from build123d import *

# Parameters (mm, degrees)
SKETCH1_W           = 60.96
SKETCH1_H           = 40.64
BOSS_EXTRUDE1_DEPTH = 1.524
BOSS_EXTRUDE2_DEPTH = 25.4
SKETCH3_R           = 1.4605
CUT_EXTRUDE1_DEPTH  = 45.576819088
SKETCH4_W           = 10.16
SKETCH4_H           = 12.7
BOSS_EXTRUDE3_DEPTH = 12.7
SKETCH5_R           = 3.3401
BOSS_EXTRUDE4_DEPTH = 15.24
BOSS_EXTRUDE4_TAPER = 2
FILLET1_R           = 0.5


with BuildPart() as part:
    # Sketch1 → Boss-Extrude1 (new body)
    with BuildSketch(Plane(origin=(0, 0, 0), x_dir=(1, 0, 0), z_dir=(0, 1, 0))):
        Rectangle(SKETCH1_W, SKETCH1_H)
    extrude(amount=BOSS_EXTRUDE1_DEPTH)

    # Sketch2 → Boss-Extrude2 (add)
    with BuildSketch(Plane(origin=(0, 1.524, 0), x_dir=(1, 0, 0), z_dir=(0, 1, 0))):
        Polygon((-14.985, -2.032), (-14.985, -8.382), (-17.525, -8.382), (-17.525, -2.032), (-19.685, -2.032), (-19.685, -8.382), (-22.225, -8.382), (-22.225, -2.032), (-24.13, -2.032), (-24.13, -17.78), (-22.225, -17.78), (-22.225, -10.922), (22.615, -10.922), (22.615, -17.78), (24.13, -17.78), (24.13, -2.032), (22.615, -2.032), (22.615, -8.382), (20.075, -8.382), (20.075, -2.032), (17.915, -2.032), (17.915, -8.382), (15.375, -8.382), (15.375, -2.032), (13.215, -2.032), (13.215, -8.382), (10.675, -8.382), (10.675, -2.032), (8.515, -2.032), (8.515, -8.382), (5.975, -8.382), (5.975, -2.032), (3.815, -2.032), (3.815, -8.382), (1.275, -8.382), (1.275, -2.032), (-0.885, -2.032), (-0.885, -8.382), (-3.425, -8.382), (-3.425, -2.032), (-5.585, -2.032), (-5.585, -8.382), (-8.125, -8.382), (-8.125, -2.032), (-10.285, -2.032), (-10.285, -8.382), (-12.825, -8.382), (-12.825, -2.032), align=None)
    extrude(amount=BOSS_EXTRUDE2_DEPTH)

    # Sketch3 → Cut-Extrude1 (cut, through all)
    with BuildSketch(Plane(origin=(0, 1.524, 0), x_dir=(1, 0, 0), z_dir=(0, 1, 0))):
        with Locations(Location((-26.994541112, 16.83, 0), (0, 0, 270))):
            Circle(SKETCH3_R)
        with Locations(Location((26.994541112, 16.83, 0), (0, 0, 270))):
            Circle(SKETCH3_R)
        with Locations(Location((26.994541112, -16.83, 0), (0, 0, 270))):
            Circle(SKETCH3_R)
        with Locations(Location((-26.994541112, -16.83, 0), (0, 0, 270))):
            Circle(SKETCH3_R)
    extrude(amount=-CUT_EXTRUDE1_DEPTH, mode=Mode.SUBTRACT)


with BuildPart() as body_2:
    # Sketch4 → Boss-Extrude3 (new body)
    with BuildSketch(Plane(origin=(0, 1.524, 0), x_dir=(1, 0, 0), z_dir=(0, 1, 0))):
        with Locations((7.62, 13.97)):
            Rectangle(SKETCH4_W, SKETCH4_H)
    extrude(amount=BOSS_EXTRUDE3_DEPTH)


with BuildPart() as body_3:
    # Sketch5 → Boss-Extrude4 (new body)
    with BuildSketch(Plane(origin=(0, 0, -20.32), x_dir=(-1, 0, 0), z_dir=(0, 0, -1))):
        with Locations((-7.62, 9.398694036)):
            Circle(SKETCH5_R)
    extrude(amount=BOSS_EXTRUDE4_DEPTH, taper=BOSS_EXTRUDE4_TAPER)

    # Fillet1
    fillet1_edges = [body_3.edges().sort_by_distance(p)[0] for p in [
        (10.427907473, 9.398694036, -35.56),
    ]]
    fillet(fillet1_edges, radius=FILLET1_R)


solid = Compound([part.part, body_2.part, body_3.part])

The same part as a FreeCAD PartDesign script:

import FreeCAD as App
import Part
import Sketcher

V = App.Vector
Q = App.Units.Quantity


def edges_at(feature, points):
    """Names of the edges that pass closest to the given points."""
    edges = feature.Shape.Edges
    near = lambda p: min(range(len(edges)), key=lambda i: edges[i].distToShape(Part.Vertex(*p))[0])
    return sorted({f"Edge{near(p) + 1}" for p in points})

doc = App.newDocument("Part")
body = doc.addObject("PartDesign::Body", "Body")

# Sketch on XZ plane
sketch1 = doc.addObject("Sketcher::SketchObject", "Sketch")
body.addObject(sketch1)
sketch1.AttachmentSupport = (doc.XZ_Plane, [""])
sketch1.MapMode = "FlatFace"
sketch1.addGeometry([
    Part.LineSegment(V(-30.48, -20.32, 0), V(-30.48, 20.32, 0)),
    Part.LineSegment(V(-30.48, 20.32, 0), V(30.48, 20.32, 0)),
    Part.LineSegment(V(30.48, 20.32, 0), V(30.48, -20.32, 0)),
    Part.LineSegment(V(30.48, -20.32, 0), V(-30.48, -20.32, 0)),
], False)
sketch1.addConstraint([
    Sketcher.Constraint("Coincident", 0, 2, 1, 1),
    Sketcher.Constraint("Coincident", 1, 2, 2, 1),
    Sketcher.Constraint("Coincident", 2, 2, 3, 1),
    Sketcher.Constraint("Coincident", 3, 2, 0, 1),
    Sketcher.Constraint("Vertical", 0),
    Sketcher.Constraint("Horizontal", 1),
    Sketcher.Constraint("Vertical", 2),
    Sketcher.Constraint("Horizontal", 3),
    Sketcher.Constraint("Symmetric", 0, 2, 2, 2, -1, 1),
    Sketcher.Constraint("DistanceX", 1, 1, 1, 2, Q("2.4 in")),
    Sketcher.Constraint("DistanceY", 0, 1, 0, 2, Q("1.6 in")),
])
pad1 = doc.addObject("PartDesign::Pad", "Pad")
body.addObject(pad1)
pad1.Profile = sketch1
pad1.Length = Q("0.06 in")
pad1.Reversed = True

# Sketch on XZ plane
sketch2 = doc.addObject("Sketcher::SketchObject", "Sketch001")
body.addObject(sketch2)
sketch2.AttachmentSupport = (doc.XZ_Plane, [""])
sketch2.MapMode = "FlatFace"
sketch2.AttachmentOffset = App.Placement(V(0, 0, -0.06 * 25.4), App.Rotation())
sketch2.addGeometry([
    Part.LineSegment(V(-14.985, 2.032, 0), V(-14.985, 8.382, 0)),  # 0
    Part.LineSegment(V(-14.985, 8.382, 0), V(-17.525, 8.382, 0)),  # 1
    Part.LineSegment(V(-17.525, 8.382, 0), V(-17.525, 2.032, 0)),  # 2
    Part.LineSegment(V(-17.525, 2.032, 0), V(-19.685, 2.032, 0)),  # 3
    Part.LineSegment(V(-19.685, 2.032, 0), V(-19.685, 8.382, 0)),  # 4
    Part.LineSegment(V(-19.685, 8.382, 0), V(-22.225, 8.382, 0)),  # 5
    Part.LineSegment(V(-22.225, 8.382, 0), V(-22.225, 2.032, 0)),  # 6
    Part.LineSegment(V(-22.225, 2.032, 0), V(-24.13, 2.032, 0)),  # 7
    Part.LineSegment(V(-24.13, 2.032, 0), V(-24.13, 17.78, 0)),  # 8
    Part.LineSegment(V(-24.13, 17.78, 0), V(-22.225, 17.78, 0)),  # 9
    Part.LineSegment(V(-22.225, 17.78, 0), V(-22.225, 10.922, 0)),  # 10
    Part.LineSegment(V(-22.225, 10.922, 0), V(22.615, 10.922, 0)),  # 11
    Part.LineSegment(V(22.615, 10.922, 0), V(22.615, 17.78, 0)),  # 12
    Part.LineSegment(V(22.615, 17.78, 0), V(24.13, 17.78, 0)),  # 13
    Part.LineSegment(V(24.13, 17.78, 0), V(24.13, 2.032, 0)),  # 14
    Part.LineSegment(V(24.13, 2.032, 0), V(22.615, 2.032, 0)),  # 15
    Part.LineSegment(V(22.615, 2.032, 0), V(22.615, 8.382, 0)),  # 16
    Part.LineSegment(V(22.615, 8.382, 0), V(20.075, 8.382, 0)),  # 17
    Part.LineSegment(V(20.075, 8.382, 0), V(20.075, 2.032, 0)),  # 18
    Part.LineSegment(V(20.075, 2.032, 0), V(17.915, 2.032, 0)),  # 19
    Part.LineSegment(V(17.915, 2.032, 0), V(17.915, 8.382, 0)),  # 20
    Part.LineSegment(V(17.915, 8.382, 0), V(15.375, 8.382, 0)),  # 21
    Part.LineSegment(V(15.375, 8.382, 0), V(15.375, 2.032, 0)),  # 22
    Part.LineSegment(V(15.375, 2.032, 0), V(13.215, 2.032, 0)),  # 23
    Part.LineSegment(V(13.215, 2.032, 0), V(13.215, 8.382, 0)),  # 24
    Part.LineSegment(V(13.215, 8.382, 0), V(10.675, 8.382, 0)),  # 25
    Part.LineSegment(V(10.675, 8.382, 0), V(10.675, 2.032, 0)),  # 26
    Part.LineSegment(V(10.675, 2.032, 0), V(8.515, 2.032, 0)),  # 27
    Part.LineSegment(V(8.515, 2.032, 0), V(8.515, 8.382, 0)),  # 28
    Part.LineSegment(V(8.515, 8.382, 0), V(5.975, 8.382, 0)),  # 29
    Part.LineSegment(V(5.975, 8.382, 0), V(5.975, 2.032, 0)),  # 30
    Part.LineSegment(V(5.975, 2.032, 0), V(3.815, 2.032, 0)),  # 31
    Part.LineSegment(V(3.815, 2.032, 0), V(3.815, 8.382, 0)),  # 32
    Part.LineSegment(V(3.815, 8.382, 0), V(1.275, 8.382, 0)),  # 33
    Part.LineSegment(V(1.275, 8.382, 0), V(1.275, 2.032, 0)),  # 34
    Part.LineSegment(V(1.275, 2.032, 0), V(-0.885, 2.032, 0)),  # 35
    Part.LineSegment(V(-0.885, 2.032, 0), V(-0.885, 8.382, 0)),  # 36
    Part.LineSegment(V(-0.885, 8.382, 0), V(-3.425, 8.382, 0)),  # 37
    Part.LineSegment(V(-3.425, 8.382, 0), V(-3.425, 2.032, 0)),  # 38
    Part.LineSegment(V(-3.425, 2.032, 0), V(-5.585, 2.032, 0)),  # 39
    Part.LineSegment(V(-5.585, 2.032, 0), V(-5.585, 8.382, 0)),  # 40
    Part.LineSegment(V(-5.585, 8.382, 0), V(-8.125, 8.382, 0)),  # 41
    Part.LineSegment(V(-8.125, 8.382, 0), V(-8.125, 2.032, 0)),  # 42
    Part.LineSegment(V(-8.125, 2.032, 0), V(-10.285, 2.032, 0)),  # 43
    Part.LineSegment(V(-10.285, 2.032, 0), V(-10.285, 8.382, 0)),  # 44
    Part.LineSegment(V(-10.285, 8.382, 0), V(-12.825, 8.382, 0)),  # 45
    Part.LineSegment(V(-12.825, 8.382, 0), V(-12.825, 2.032, 0)),  # 46
    Part.LineSegment(V(-12.825, 2.032, 0), V(-14.985, 2.032, 0)),  # 47
], False)
sketch2.addConstraint([
    Sketcher.Constraint("Coincident", 0, 2, 1, 1),
    Sketcher.Constraint("Coincident", 1, 2, 2, 1),
    Sketcher.Constraint("Coincident", 2, 2, 3, 1),
    Sketcher.Constraint("Coincident", 3, 2, 4, 1),
    Sketcher.Constraint("Coincident", 4, 2, 5, 1),
    Sketcher.Constraint("Coincident", 5, 2, 6, 1),
    Sketcher.Constraint("Coincident", 6, 2, 7, 1),
    Sketcher.Constraint("Coincident", 7, 2, 8, 1),
    Sketcher.Constraint("Coincident", 8, 2, 9, 1),
    Sketcher.Constraint("Coincident", 9, 2, 10, 1),
    Sketcher.Constraint("Coincident", 10, 2, 11, 1),
    Sketcher.Constraint("Coincident", 11, 2, 12, 1),
    Sketcher.Constraint("Coincident", 12, 2, 13, 1),
    Sketcher.Constraint("Coincident", 13, 2, 14, 1),
    Sketcher.Constraint("Coincident", 14, 2, 15, 1),
    Sketcher.Constraint("Coincident", 15, 2, 16, 1),
    Sketcher.Constraint("Coincident", 16, 2, 17, 1),
    Sketcher.Constraint("Coincident", 17, 2, 18, 1),
    Sketcher.Constraint("Coincident", 18, 2, 19, 1),
    Sketcher.Constraint("Coincident", 19, 2, 20, 1),
    Sketcher.Constraint("Coincident", 20, 2, 21, 1),
    Sketcher.Constraint("Coincident", 21, 2, 22, 1),
    Sketcher.Constraint("Coincident", 22, 2, 23, 1),
    Sketcher.Constraint("Coincident", 23, 2, 24, 1),
    Sketcher.Constraint("Coincident", 24, 2, 25, 1),
    Sketcher.Constraint("Coincident", 25, 2, 26, 1),
    Sketcher.Constraint("Coincident", 26, 2, 27, 1),
    Sketcher.Constraint("Coincident", 27, 2, 28, 1),
    Sketcher.Constraint("Coincident", 28, 2, 29, 1),
    Sketcher.Constraint("Coincident", 29, 2, 30, 1),
    Sketcher.Constraint("Coincident", 30, 2, 31, 1),
    Sketcher.Constraint("Coincident", 31, 2, 32, 1),
    Sketcher.Constraint("Coincident", 32, 2, 33, 1),
    Sketcher.Constraint("Coincident", 33, 2, 34, 1),
    Sketcher.Constraint("Coincident", 34, 2, 35, 1),
    Sketcher.Constraint("Coincident", 35, 2, 36, 1),
    Sketcher.Constraint("Coincident", 36, 2, 37, 1),
    Sketcher.Constraint("Coincident", 37, 2, 38, 1),
    Sketcher.Constraint("Coincident", 38, 2, 39, 1),
    Sketcher.Constraint("Coincident", 39, 2, 40, 1),
    Sketcher.Constraint("Coincident", 40, 2, 41, 1),
    Sketcher.Constraint("Coincident", 41, 2, 42, 1),
    Sketcher.Constraint("Coincident", 42, 2, 43, 1),
    Sketcher.Constraint("Coincident", 43, 2, 44, 1),
    Sketcher.Constraint("Coincident", 44, 2, 45, 1),
    Sketcher.Constraint("Coincident", 45, 2, 46, 1),
    Sketcher.Constraint("Coincident", 46, 2, 47, 1),
    Sketcher.Constraint("Coincident", 47, 2, 0, 1),
    Sketcher.Constraint("Vertical", 0),
    Sketcher.Constraint("Horizontal", 1),
    Sketcher.Constraint("Vertical", 2),
    Sketcher.Constraint("Horizontal", 3),
    Sketcher.Constraint("Vertical", 4),
    Sketcher.Constraint("Horizontal", 5),
    Sketcher.Constraint("Vertical", 6),
    Sketcher.Constraint("Horizontal", 7),
    Sketcher.Constraint("Vertical", 8),
    Sketcher.Constraint("Horizontal", 9),
    Sketcher.Constraint("Vertical", 10),
    Sketcher.Constraint("Horizontal", 11),
    Sketcher.Constraint("Vertical", 12),
    Sketcher.Constraint("Horizontal", 13),
    Sketcher.Constraint("Vertical", 14),
    Sketcher.Constraint("Horizontal", 15),
    Sketcher.Constraint("Vertical", 16),
    Sketcher.Constraint("Horizontal", 17),
    Sketcher.Constraint("Vertical", 18),
    Sketcher.Constraint("Horizontal", 19),
    Sketcher.Constraint("Vertical", 20),
    Sketcher.Constraint("Horizontal", 21),
    Sketcher.Constraint("Vertical", 22),
    Sketcher.Constraint("Horizontal", 23),
    Sketcher.Constraint("Vertical", 24),
    Sketcher.Constraint("Horizontal", 25),
    Sketcher.Constraint("Vertical", 26),
    Sketcher.Constraint("Horizontal", 27),
    Sketcher.Constraint("Vertical", 28),
    Sketcher.Constraint("Horizontal", 29),
    Sketcher.Constraint("Vertical", 30),
    Sketcher.Constraint("Horizontal", 31),
    Sketcher.Constraint("Vertical", 32),
    Sketcher.Constraint("Horizontal", 33),
    Sketcher.Constraint("Vertical", 34),
    Sketcher.Constraint("Horizontal", 35),
    Sketcher.Constraint("Vertical", 36),
    Sketcher.Constraint("Horizontal", 37),
    Sketcher.Constraint("Vertical", 38),
    Sketcher.Constraint("Horizontal", 39),
    Sketcher.Constraint("Vertical", 40),
    Sketcher.Constraint("Horizontal", 41),
    Sketcher.Constraint("Vertical", 42),
    Sketcher.Constraint("Horizontal", 43),
    Sketcher.Constraint("Vertical", 44),
    Sketcher.Constraint("Horizontal", 45),
    Sketcher.Constraint("Vertical", 46),
    Sketcher.Constraint("Horizontal", 47),
    Sketcher.Constraint("Symmetric", 8, 2, 13, 2, -2),
    Sketcher.Constraint("Horizontal", 1, 2, 4, 2),
    Sketcher.Constraint("Horizontal", 3, 2, 6, 2),
    Sketcher.Constraint("Horizontal", 7, 2, 14, 2),
    Sketcher.Constraint("Horizontal", 5, 2, 16, 2),
    Sketcher.Constraint("Horizontal", 15, 2, 18, 2),
    Sketcher.Constraint("Horizontal", 17, 2, 20, 2),
    Sketcher.Constraint("Horizontal", 19, 2, 22, 2),
    Sketcher.Constraint("Horizontal", 21, 2, 24, 2),
    Sketcher.Constraint("Horizontal", 23, 2, 26, 2),
    Sketcher.Constraint("Horizontal", 25, 2, 28, 2),
    Sketcher.Constraint("Horizontal", 27, 2, 30, 2),
    Sketcher.Constraint("Horizontal", 29, 2, 32, 2),
    Sketcher.Constraint("Horizontal", 31, 2, 34, 2),
    Sketcher.Constraint("Horizontal", 33, 2, 36, 2),
    Sketcher.Constraint("Horizontal", 35, 2, 38, 2),
    Sketcher.Constraint("Horizontal", 37, 2, 40, 2),
    Sketcher.Constraint("Horizontal", 39, 2, 42, 2),
    Sketcher.Constraint("Horizontal", 41, 2, 44, 2),
    Sketcher.Constraint("Horizontal", 43, 2, 46, 2),
    Sketcher.Constraint("Vertical", 6, 2, 9, 2),
    Sketcher.Constraint("Vertical", 12, 2, 15, 2),
    Sketcher.Constraint("Equal", 1, 5),
    Sketcher.Constraint("Equal", 5, 17),
    Sketcher.Constraint("Equal", 3, 19),
    Sketcher.Constraint("Equal", 17, 21),
    Sketcher.Constraint("Equal", 19, 23),
    Sketcher.Constraint("Equal", 21, 25),
    Sketcher.Constraint("Equal", 23, 27),
    Sketcher.Constraint("Equal", 25, 29),
    Sketcher.Constraint("Equal", 27, 31),
    Sketcher.Constraint("Equal", 29, 33),
    Sketcher.Constraint("Equal", 31, 35),
    Sketcher.Constraint("Equal", 33, 37),
    Sketcher.Constraint("Equal", 35, 39),
    Sketcher.Constraint("Equal", 37, 41),
    Sketcher.Constraint("Equal", 39, 43),
    Sketcher.Constraint("Equal", 41, 45),
    Sketcher.Constraint("Equal", 43, 47),
    Sketcher.Constraint("DistanceX", 1, 2, 1, 1, Q("0.1 in")),
    Sketcher.Constraint("DistanceY", 0, 1, 0, 2, Q("0.25 in")),
    Sketcher.Constraint("DistanceY", 8, 1, 8, 2, Q("0.62 in")),
    Sketcher.Constraint("DistanceY", 10, 2, 10, 1, Q("0.27 in")),
    Sketcher.Constraint("DistanceY", -1, 1, 8, 2, Q("0.7 in")),
    Sketcher.Constraint("DistanceX", 7, 2, 7, 1, Q("0.075 in")),
    Sketcher.Constraint("DistanceX", 7, 2, -1, 1, Q("0.95 in")),
    Sketcher.Constraint("DistanceX", 3, 2, 3, 1, 2.16),
])
pad2 = doc.addObject("PartDesign::Pad", "Pad001")
body.addObject(pad2)
pad2.Profile = sketch2
pad2.Length = Q("1 in")
pad2.Reversed = True

# Sketch on XZ plane
sketch3 = doc.addObject("Sketcher::SketchObject", "Sketch002")
body.addObject(sketch3)
sketch3.AttachmentSupport = (doc.XZ_Plane, [""])
sketch3.MapMode = "FlatFace"
sketch3.AttachmentOffset = App.Placement(V(0, 0, -0.06 * 25.4), App.Rotation())
sketch3.addGeometry([
    Part.Circle(V(-26.994541, -16.83, 0), V(0, 0, 1), 1.4605),
    Part.Circle(V(26.994541, -16.83, 0), V(0, 0, 1), 1.4605),
    Part.Circle(V(26.994541, 16.83, 0), V(0, 0, 1), 1.4605),
    Part.Circle(V(-26.994541, 16.83, 0), V(0, 0, 1), 1.4605),
], False)
sketch3.addConstraint([
    Sketcher.Constraint("Equal", 0, 1),
    Sketcher.Constraint("Equal", 1, 2),
    Sketcher.Constraint("Equal", 2, 3),
    Sketcher.Constraint("Symmetric", 0, 3, 2, 3, -1, 1),
    Sketcher.Constraint("Symmetric", 1, 3, 3, 3, -1, 1),
    Sketcher.Constraint("Symmetric", 0, 3, 1, 3, -2),
    Sketcher.Constraint("Diameter", 0, Q("0.115 in")),
    Sketcher.Constraint("DistanceY", 0, 3, -1, 1, 16.83),
    Sketcher.Constraint("DistanceX", 0, 3, -1, 1, 26.994541),
])
pocket1 = doc.addObject("PartDesign::Pocket", "Pocket")
body.addObject(pocket1)
pocket1.Profile = sketch3
pocket1.Type = "ThroughAll"
pocket1.Reversed = True
body2 = doc.addObject("PartDesign::Body", "Body001")

# Sketch on XZ plane
sketch4 = doc.addObject("Sketcher::SketchObject", "Sketch003")
body2.addObject(sketch4)
sketch4.AttachmentSupport = (doc.getObject("XZ_Plane001"), [""])
sketch4.MapMode = "FlatFace"
sketch4.AttachmentOffset = App.Placement(V(0, 0, -0.06 * 25.4), App.Rotation())
sketch4.addGeometry([
    Part.LineSegment(V(2.54, -20.32, 0), V(2.54, -7.62, 0)),
    Part.LineSegment(V(2.54, -7.62, 0), V(12.7, -7.62, 0)),
    Part.LineSegment(V(12.7, -7.62, 0), V(12.7, -20.32, 0)),
    Part.LineSegment(V(12.7, -20.32, 0), V(2.54, -20.32, 0)),
], False)
sketch4.addConstraint([
    Sketcher.Constraint("Coincident", 0, 2, 1, 1),
    Sketcher.Constraint("Coincident", 1, 2, 2, 1),
    Sketcher.Constraint("Coincident", 2, 2, 3, 1),
    Sketcher.Constraint("Coincident", 3, 2, 0, 1),
    Sketcher.Constraint("Vertical", 0),
    Sketcher.Constraint("Horizontal", 1),
    Sketcher.Constraint("Vertical", 2),
    Sketcher.Constraint("Horizontal", 3),
    Sketcher.Constraint("DistanceX", 1, 1, 1, 2, Q("0.4 in")),
    Sketcher.Constraint("DistanceY", 0, 1, 0, 2, Q("0.5 in")),
    Sketcher.Constraint("DistanceX", -1, 1, 0, 2, Q("0.1 in")),
    Sketcher.Constraint("DistanceY", 0, 2, -1, 1, Q("0.3 in")),
])
pad3 = doc.addObject("PartDesign::Pad", "Pad002")
body2.addObject(pad3)
pad3.Profile = sketch4
pad3.Length = Q("0.5 in")
pad3.Reversed = True
body3 = doc.addObject("PartDesign::Body", "Body002")

# Sketch on XY plane
sketch5 = doc.addObject("Sketcher::SketchObject", "Sketch004")
body3.addObject(sketch5)
sketch5.AttachmentSupport = (doc.getObject("XY_Plane002"), [""])
sketch5.MapMode = "FlatFace"
sketch5.AttachmentOffset = App.Placement(V(0, 0, -0.8 * 25.4), App.Rotation())
sketch5.addGeometry(Part.Circle(V(7.62, 9.398694, 0), V(0, 0, 1), 3.3401), False)
sketch5.addConstraint([
    Sketcher.Constraint("Diameter", 0, Q("0.263 in")),
    Sketcher.Constraint("DistanceX", -1, 1, 0, 3, Q("0.3 in")),
    Sketcher.Constraint("DistanceY", -1, 1, 0, 3, 9.398694),
])
pad4 = doc.addObject("PartDesign::Pad", "Pad003")
body3.addObject(pad4)
pad4.Profile = sketch5
pad4.Length = Q("0.6 in")
pad4.Reversed = True
pad4.TaperAngle = -2
doc.recompute()

fillet = doc.addObject("PartDesign::Fillet", "Fillet")
body3.addObject(fillet)
fillet.Base = (pad4, edges_at(pad4, [(10.428, 9.399, -35.56)]))
fillet.Radius = 0.5

doc.recompute()
